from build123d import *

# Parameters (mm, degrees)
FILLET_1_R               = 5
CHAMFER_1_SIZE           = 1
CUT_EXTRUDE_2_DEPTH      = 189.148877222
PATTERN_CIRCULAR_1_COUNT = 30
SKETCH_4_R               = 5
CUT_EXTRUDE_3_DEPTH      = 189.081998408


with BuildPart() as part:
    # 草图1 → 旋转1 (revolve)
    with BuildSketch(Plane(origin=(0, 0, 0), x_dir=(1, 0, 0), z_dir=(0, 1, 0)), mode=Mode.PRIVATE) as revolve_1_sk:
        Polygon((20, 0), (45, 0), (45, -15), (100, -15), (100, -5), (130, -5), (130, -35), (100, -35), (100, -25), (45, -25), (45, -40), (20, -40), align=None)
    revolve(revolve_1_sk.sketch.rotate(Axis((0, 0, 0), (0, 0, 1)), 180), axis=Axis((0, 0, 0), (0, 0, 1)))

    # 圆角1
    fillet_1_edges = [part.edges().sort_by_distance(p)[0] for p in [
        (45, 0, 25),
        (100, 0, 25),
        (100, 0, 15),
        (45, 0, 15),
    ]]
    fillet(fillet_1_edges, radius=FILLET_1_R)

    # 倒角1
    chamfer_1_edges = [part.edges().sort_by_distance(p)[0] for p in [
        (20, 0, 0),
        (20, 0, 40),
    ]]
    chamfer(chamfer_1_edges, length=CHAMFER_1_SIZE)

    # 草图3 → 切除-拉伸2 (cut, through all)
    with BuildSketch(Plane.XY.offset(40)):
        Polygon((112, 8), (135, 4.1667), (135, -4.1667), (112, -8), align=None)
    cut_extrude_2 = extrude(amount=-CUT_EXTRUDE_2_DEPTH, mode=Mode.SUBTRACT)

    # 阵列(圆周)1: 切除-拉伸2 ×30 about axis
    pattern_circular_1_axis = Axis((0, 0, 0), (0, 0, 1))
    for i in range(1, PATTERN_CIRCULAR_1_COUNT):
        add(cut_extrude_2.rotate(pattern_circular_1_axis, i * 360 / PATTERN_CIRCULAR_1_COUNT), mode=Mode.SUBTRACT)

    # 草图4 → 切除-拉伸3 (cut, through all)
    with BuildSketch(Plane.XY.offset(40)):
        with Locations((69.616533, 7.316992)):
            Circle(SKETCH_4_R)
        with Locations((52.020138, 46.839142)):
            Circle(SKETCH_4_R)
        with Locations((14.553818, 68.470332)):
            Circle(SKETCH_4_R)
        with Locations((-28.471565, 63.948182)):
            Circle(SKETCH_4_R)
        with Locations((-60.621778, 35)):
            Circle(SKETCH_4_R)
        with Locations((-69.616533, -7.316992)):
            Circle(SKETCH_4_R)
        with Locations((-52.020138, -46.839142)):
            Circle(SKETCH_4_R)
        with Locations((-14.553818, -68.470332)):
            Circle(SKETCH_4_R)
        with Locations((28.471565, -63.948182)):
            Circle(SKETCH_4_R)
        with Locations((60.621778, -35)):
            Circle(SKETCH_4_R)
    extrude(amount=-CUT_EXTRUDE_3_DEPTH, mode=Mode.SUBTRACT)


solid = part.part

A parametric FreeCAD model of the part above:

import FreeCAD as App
import Part
import Sketcher
from FreeCAD import Vector


def edges_at(feature, points):
    """Names of the edges that pass closest to the given points."""
    edges = feature.Shape.Edges
    near = lambda p: min(range(len(edges)), key=lambda i: edges[i].distToShape(Part.Vertex(*p))[0])
    return sorted({f"Edge{near(p) + 1}" for p in points})

doc = App.newDocument("Part")
body = doc.addObject("PartDesign::Body", "Body")

sketch1 = doc.addObject("Sketcher::SketchObject", "Sketch")
body.addObject(sketch1)
sketch1.AttachmentSupport = (doc.XZ_Plane, [""])
sketch1.MapMode = "FlatFace"
sketch1.addGeometry([
    Part.LineSegment(Vector(45, 0, 0), Vector(20, 0, 0)),
    Part.LineSegment(Vector(20, 0, 0), Vector(20, 40, 0)),
    Part.LineSegment(Vector(20, 40, 0), Vector(45, 40, 0)),
    Part.LineSegment(Vector(45, 40, 0), Vector(45, 25, 0)),
    Part.LineSegment(Vector(45, 25, 0), Vector(100, 25, 0)),
    Part.LineSegment(Vector(100, 25, 0), Vector(100, 35, 0)),
    Part.LineSegment(Vector(100, 35, 0), Vector(130, 35, 0)),
    Part.LineSegment(Vector(130, 35, 0), Vector(130, 5, 0)),
    Part.LineSegment(Vector(130, 5, 0), Vector(100, 5, 0)),
    Part.LineSegment(Vector(100, 5, 0), Vector(100, 15, 0)),
    Part.LineSegment(Vector(100, 15, 0), Vector(45, 15, 0)),
    Part.LineSegment(Vector(45, 15, 0), Vector(45, 0, 0)),
], False)
sketch1.addConstraint([
    Sketcher.Constraint("Coincident", 0, 2, 1, 1),
    Sketcher.Constraint("Coincident", 1, 2, 2, 1),
    Sketcher.Constraint("Coincident", 2, 2, 3, 1),
    Sketcher.Constraint("Coincident", 3, 2, 4, 1),
    Sketcher.Constraint("Coincident", 4, 2, 5, 1),
    Sketcher.Constraint("Coincident", 5, 2, 6, 1),
    Sketcher.Constraint("Coincident", 6, 2, 7, 1),
    Sketcher.Constraint("Coincident", 7, 2, 8, 1),
    Sketcher.Constraint("Coincident", 8, 2, 9, 1),
    Sketcher.Constraint("Coincident", 9, 2, 10, 1),
    Sketcher.Constraint("Coincident", 10, 2, 11, 1),
    Sketcher.Constraint("Coincident", 11, 2, 0, 1),
    Sketcher.Constraint("Horizontal", 0),
    Sketcher.Constraint("Vertical", 1),
    Sketcher.Constraint("Horizontal", 2),
    Sketcher.Constraint("Vertical", 3),
    Sketcher.Constraint("Horizontal", 4),
    Sketcher.Constraint("Vertical", 5),
    Sketcher.Constraint("Horizontal", 6),
    Sketcher.Constraint("Vertical", 7),
    Sketcher.Constraint("Horizontal", 8),
    Sketcher.Constraint("Vertical", 9),
    Sketcher.Constraint("Horizontal", 10),
    Sketcher.Constraint("Vertical", 11),
    Sketcher.Constraint("PointOnObject", 0, 2, -1),
    Sketcher.Constraint("Vertical", 5, 2, 8, 2),
    Sketcher.Constraint("Vertical", 3, 2, 10, 2),
    Sketcher.Constraint("Equal", 8, 7),
    Sketcher.Constraint("Equal", 5, 9),
    Sketcher.Constraint("Equal", 3, 11),
    Sketcher.Constraint("DistanceX", 0, 2, 0, 1, 25.0),
    Sketcher.Constraint("DistanceX", 4, 1, 4, 2, 55.0),
    Sketcher.Constraint("DistanceX", 6, 1, 6, 2, 30.0),
    Sketcher.Constraint("DistanceY", 1, 1, 1, 2, 40.0),
    Sketcher.Constraint("DistanceY", 3, 2, 3, 1, 15.0),
    Sketcher.Constraint("DistanceX", -1, 1, 0, 2, 20.0),
])
revolution = doc.addObject("PartDesign::Revolution", "Revolution")
body.addObject(revolution)
revolution.Profile = sketch1
revolution.ReferenceAxis = (sketch1, ["V_Axis"])
revolution.Angle = 360
doc.recompute()

fillet = doc.addObject("PartDesign::Fillet", "Fillet")
body.addObject(fillet)
fillet.Base = (revolution, edges_at(revolution, [
    (45, 0, 25),
    (100, 0, 25),
    (100, 0, 15),
    (45, 0, 15),
]))
fillet.Radius = 5
doc.recompute()

chamfer = doc.addObject("PartDesign::Chamfer", "Chamfer")
body.addObject(chamfer)
chamfer.Base = (fillet, edges_at(fillet, [(20, 0, 0), (20, 0, 40)]))
chamfer.Size = 1

sketch2 = doc.addObject("Sketcher::SketchObject", "Sketch001")
body.addObject(sketch2)
sketch2.AttachmentSupport = (doc.XY_Plane, [""])
sketch2.MapMode = "FlatFace"
sketch2.AttachmentOffset = App.Placement(Vector(0, 0, 40), App.Rotation())
sketch2.addGeometry([
    Part.LineSegment(Vector(135, 4.1667, 0), Vector(112, 8, 0)),
    Part.LineSegment(Vector(112, 8, 0), Vector(112, -8, 0)),
    Part.LineSegment(Vector(112, -8, 0), Vector(135, -4.1667, 0)),
    Part.LineSegment(Vector(135, -4.1667, 0), Vector(135, 4.1667, 0)),
], False)
sketch2.addConstraint([
    Sketcher.Constraint("Coincident", 0, 2, 1, 1),
    Sketcher.Constraint("Coincident", 1, 2, 2, 1),
    Sketcher.Constraint("Coincident", 2, 2, 3, 1),
    Sketcher.Constraint("Coincident", 3, 2, 0, 1),
    Sketcher.Constraint("Vertical", 1),
    Sketcher.Constraint("Vertical", 3),
    Sketcher.Constraint("Equal", 0, 2),
    Sketcher.Constraint("DistanceY", 1, 2, 1, 1, 16.0),
    Sketcher.Constraint("DistanceX", -1, 1, 0, 2, 112.0),
    Sketcher.Constraint("DistanceY", -1, 1, 0, 2, 8.0),
    Sketcher.Constraint("DistanceX", -1, 1, 2, 2, 135.0),
    Sketcher.Constraint("DistanceY", 3, 1, 3, 2, 8.3334),
])
pocket1 = doc.addObject("PartDesign::Pocket", "Pocket")
body.addObject(pocket1)
pocket1.Profile = sketch2
pocket1.Type = "ThroughAll"
doc.recompute()

polarpattern = doc.addObject("PartDesign::PolarPattern", "PolarPattern")
body.addObject(polarpattern)
polarpattern.Originals = [pocket1]
polarpattern.Axis = (doc.Z_Axis, [""])
polarpattern.Angle = 360
polarpattern.Occurrences = 30
body.Tip = polarpattern

sketch3 = doc.addObject("Sketcher::SketchObject", "Sketch002")
body.addObject(sketch3)
sketch3.AttachmentSupport = (doc.XY_Plane, [""])
sketch3.MapMode = "FlatFace"
sketch3.AttachmentOffset = App.Placement(Vector(0, 0, 40), App.Rotation())
sketch3.addGeometry([
    Part.Circle(Vector(69.616533, 7.316992, 0), Vector(0, 0, 1), 5),
    Part.Circle(Vector(52.020138, 46.839142, 0), Vector(0, 0, 1), 5),
    Part.Circle(Vector(14.553818, 68.470332, 0), Vector(0, 0, 1), 5),
    Part.Circle(Vector(-28.471565, 63.948182, 0), Vector(0, 0, 1), 5),
    Part.Circle(Vector(-60.621778, 35, 0), Vector(0, 0, 1), 5),
    Part.Circle(Vector(-69.616533, -7.316992, 0), Vector(0, 0, 1), 5),
    Part.Circle(Vector(-52.020138, -46.839142, 0), Vector(0, 0, 1), 5),
    Part.Circle(Vector(-14.553818, -68.470332, 0), Vector(0, 0, 1), 5),
    Part.Circle(Vector(28.471565, -63.948182, 0), Vector(0, 0, 1), 5),
    Part.Circle(Vector(60.621778, -35, 0), Vector(0, 0, 1), 5),
], False)
sketch3.addConstraint([
    Sketcher.Constraint("Equal", 0, 1),
    Sketcher.Constraint("Equal", 1, 2),
    Sketcher.Constraint("Equal", 2, 3),
    Sketcher.Constraint("Equal", 3, 4),
    Sketcher.Constraint("Equal", 4, 5),
    Sketcher.Constraint("Equal", 5, 6),
    Sketcher.Constraint("Equal", 6, 7),
    Sketcher.Constraint("Equal", 7, 8),
    Sketcher.Constraint("Equal", 8, 9),
    Sketcher.Constraint("Symmetric", 0, 3, 5, 3, -1, 1),
    Sketcher.Constraint("Symmetric", 1, 3, 6, 3, -1, 1),
    Sketcher.Constraint("Symmetric", 2, 3, 7, 3, -1, 1),
    Sketcher.Constraint("Symmetric", 3, 3, 8, 3, -1, 1),
    Sketcher.Constraint("Symmetric", 4, 3, 9, 3, -1, 1),
    Sketcher.Constraint("Diameter", 0, 10.0),
    Sketcher.Constraint("DistanceY", -1, 1, 4, 3, 35.0),
    Sketcher.Constraint("DistanceX", 3, 3, 0, 3, 98.088098),
    Sketcher.Constraint("DistanceX", -1, 1, 1, 3, 52.020138),
    Sketcher.Constraint("DistanceY", -1, 1, 2, 3, 68.470332),
    Sketcher.Constraint("DistanceY", 0, 3, 1, 3, 39.52215),
    Sketcher.Constraint("DistanceX", 2, 3, 1, 3, 37.46632),
    Sketcher.Constraint("DistanceY", 1, 3, 2, 3, 21.63119),
    Sketcher.Constraint("DistanceY", 3, 3, 2, 3, 4.52215),
    Sketcher.Constraint("DistanceX", 4, 3, 0, 3, 130.238311),
    Sketcher.Constraint("DistanceX", 5, 3, 3, 3, 41.144968),
])
pocket2 = doc.addObject("PartDesign::Pocket", "Pocket001")
body.addObject(pocket2)
pocket2.Profile = sketch3
pocket2.Type = "ThroughAll"

doc.recompute()
